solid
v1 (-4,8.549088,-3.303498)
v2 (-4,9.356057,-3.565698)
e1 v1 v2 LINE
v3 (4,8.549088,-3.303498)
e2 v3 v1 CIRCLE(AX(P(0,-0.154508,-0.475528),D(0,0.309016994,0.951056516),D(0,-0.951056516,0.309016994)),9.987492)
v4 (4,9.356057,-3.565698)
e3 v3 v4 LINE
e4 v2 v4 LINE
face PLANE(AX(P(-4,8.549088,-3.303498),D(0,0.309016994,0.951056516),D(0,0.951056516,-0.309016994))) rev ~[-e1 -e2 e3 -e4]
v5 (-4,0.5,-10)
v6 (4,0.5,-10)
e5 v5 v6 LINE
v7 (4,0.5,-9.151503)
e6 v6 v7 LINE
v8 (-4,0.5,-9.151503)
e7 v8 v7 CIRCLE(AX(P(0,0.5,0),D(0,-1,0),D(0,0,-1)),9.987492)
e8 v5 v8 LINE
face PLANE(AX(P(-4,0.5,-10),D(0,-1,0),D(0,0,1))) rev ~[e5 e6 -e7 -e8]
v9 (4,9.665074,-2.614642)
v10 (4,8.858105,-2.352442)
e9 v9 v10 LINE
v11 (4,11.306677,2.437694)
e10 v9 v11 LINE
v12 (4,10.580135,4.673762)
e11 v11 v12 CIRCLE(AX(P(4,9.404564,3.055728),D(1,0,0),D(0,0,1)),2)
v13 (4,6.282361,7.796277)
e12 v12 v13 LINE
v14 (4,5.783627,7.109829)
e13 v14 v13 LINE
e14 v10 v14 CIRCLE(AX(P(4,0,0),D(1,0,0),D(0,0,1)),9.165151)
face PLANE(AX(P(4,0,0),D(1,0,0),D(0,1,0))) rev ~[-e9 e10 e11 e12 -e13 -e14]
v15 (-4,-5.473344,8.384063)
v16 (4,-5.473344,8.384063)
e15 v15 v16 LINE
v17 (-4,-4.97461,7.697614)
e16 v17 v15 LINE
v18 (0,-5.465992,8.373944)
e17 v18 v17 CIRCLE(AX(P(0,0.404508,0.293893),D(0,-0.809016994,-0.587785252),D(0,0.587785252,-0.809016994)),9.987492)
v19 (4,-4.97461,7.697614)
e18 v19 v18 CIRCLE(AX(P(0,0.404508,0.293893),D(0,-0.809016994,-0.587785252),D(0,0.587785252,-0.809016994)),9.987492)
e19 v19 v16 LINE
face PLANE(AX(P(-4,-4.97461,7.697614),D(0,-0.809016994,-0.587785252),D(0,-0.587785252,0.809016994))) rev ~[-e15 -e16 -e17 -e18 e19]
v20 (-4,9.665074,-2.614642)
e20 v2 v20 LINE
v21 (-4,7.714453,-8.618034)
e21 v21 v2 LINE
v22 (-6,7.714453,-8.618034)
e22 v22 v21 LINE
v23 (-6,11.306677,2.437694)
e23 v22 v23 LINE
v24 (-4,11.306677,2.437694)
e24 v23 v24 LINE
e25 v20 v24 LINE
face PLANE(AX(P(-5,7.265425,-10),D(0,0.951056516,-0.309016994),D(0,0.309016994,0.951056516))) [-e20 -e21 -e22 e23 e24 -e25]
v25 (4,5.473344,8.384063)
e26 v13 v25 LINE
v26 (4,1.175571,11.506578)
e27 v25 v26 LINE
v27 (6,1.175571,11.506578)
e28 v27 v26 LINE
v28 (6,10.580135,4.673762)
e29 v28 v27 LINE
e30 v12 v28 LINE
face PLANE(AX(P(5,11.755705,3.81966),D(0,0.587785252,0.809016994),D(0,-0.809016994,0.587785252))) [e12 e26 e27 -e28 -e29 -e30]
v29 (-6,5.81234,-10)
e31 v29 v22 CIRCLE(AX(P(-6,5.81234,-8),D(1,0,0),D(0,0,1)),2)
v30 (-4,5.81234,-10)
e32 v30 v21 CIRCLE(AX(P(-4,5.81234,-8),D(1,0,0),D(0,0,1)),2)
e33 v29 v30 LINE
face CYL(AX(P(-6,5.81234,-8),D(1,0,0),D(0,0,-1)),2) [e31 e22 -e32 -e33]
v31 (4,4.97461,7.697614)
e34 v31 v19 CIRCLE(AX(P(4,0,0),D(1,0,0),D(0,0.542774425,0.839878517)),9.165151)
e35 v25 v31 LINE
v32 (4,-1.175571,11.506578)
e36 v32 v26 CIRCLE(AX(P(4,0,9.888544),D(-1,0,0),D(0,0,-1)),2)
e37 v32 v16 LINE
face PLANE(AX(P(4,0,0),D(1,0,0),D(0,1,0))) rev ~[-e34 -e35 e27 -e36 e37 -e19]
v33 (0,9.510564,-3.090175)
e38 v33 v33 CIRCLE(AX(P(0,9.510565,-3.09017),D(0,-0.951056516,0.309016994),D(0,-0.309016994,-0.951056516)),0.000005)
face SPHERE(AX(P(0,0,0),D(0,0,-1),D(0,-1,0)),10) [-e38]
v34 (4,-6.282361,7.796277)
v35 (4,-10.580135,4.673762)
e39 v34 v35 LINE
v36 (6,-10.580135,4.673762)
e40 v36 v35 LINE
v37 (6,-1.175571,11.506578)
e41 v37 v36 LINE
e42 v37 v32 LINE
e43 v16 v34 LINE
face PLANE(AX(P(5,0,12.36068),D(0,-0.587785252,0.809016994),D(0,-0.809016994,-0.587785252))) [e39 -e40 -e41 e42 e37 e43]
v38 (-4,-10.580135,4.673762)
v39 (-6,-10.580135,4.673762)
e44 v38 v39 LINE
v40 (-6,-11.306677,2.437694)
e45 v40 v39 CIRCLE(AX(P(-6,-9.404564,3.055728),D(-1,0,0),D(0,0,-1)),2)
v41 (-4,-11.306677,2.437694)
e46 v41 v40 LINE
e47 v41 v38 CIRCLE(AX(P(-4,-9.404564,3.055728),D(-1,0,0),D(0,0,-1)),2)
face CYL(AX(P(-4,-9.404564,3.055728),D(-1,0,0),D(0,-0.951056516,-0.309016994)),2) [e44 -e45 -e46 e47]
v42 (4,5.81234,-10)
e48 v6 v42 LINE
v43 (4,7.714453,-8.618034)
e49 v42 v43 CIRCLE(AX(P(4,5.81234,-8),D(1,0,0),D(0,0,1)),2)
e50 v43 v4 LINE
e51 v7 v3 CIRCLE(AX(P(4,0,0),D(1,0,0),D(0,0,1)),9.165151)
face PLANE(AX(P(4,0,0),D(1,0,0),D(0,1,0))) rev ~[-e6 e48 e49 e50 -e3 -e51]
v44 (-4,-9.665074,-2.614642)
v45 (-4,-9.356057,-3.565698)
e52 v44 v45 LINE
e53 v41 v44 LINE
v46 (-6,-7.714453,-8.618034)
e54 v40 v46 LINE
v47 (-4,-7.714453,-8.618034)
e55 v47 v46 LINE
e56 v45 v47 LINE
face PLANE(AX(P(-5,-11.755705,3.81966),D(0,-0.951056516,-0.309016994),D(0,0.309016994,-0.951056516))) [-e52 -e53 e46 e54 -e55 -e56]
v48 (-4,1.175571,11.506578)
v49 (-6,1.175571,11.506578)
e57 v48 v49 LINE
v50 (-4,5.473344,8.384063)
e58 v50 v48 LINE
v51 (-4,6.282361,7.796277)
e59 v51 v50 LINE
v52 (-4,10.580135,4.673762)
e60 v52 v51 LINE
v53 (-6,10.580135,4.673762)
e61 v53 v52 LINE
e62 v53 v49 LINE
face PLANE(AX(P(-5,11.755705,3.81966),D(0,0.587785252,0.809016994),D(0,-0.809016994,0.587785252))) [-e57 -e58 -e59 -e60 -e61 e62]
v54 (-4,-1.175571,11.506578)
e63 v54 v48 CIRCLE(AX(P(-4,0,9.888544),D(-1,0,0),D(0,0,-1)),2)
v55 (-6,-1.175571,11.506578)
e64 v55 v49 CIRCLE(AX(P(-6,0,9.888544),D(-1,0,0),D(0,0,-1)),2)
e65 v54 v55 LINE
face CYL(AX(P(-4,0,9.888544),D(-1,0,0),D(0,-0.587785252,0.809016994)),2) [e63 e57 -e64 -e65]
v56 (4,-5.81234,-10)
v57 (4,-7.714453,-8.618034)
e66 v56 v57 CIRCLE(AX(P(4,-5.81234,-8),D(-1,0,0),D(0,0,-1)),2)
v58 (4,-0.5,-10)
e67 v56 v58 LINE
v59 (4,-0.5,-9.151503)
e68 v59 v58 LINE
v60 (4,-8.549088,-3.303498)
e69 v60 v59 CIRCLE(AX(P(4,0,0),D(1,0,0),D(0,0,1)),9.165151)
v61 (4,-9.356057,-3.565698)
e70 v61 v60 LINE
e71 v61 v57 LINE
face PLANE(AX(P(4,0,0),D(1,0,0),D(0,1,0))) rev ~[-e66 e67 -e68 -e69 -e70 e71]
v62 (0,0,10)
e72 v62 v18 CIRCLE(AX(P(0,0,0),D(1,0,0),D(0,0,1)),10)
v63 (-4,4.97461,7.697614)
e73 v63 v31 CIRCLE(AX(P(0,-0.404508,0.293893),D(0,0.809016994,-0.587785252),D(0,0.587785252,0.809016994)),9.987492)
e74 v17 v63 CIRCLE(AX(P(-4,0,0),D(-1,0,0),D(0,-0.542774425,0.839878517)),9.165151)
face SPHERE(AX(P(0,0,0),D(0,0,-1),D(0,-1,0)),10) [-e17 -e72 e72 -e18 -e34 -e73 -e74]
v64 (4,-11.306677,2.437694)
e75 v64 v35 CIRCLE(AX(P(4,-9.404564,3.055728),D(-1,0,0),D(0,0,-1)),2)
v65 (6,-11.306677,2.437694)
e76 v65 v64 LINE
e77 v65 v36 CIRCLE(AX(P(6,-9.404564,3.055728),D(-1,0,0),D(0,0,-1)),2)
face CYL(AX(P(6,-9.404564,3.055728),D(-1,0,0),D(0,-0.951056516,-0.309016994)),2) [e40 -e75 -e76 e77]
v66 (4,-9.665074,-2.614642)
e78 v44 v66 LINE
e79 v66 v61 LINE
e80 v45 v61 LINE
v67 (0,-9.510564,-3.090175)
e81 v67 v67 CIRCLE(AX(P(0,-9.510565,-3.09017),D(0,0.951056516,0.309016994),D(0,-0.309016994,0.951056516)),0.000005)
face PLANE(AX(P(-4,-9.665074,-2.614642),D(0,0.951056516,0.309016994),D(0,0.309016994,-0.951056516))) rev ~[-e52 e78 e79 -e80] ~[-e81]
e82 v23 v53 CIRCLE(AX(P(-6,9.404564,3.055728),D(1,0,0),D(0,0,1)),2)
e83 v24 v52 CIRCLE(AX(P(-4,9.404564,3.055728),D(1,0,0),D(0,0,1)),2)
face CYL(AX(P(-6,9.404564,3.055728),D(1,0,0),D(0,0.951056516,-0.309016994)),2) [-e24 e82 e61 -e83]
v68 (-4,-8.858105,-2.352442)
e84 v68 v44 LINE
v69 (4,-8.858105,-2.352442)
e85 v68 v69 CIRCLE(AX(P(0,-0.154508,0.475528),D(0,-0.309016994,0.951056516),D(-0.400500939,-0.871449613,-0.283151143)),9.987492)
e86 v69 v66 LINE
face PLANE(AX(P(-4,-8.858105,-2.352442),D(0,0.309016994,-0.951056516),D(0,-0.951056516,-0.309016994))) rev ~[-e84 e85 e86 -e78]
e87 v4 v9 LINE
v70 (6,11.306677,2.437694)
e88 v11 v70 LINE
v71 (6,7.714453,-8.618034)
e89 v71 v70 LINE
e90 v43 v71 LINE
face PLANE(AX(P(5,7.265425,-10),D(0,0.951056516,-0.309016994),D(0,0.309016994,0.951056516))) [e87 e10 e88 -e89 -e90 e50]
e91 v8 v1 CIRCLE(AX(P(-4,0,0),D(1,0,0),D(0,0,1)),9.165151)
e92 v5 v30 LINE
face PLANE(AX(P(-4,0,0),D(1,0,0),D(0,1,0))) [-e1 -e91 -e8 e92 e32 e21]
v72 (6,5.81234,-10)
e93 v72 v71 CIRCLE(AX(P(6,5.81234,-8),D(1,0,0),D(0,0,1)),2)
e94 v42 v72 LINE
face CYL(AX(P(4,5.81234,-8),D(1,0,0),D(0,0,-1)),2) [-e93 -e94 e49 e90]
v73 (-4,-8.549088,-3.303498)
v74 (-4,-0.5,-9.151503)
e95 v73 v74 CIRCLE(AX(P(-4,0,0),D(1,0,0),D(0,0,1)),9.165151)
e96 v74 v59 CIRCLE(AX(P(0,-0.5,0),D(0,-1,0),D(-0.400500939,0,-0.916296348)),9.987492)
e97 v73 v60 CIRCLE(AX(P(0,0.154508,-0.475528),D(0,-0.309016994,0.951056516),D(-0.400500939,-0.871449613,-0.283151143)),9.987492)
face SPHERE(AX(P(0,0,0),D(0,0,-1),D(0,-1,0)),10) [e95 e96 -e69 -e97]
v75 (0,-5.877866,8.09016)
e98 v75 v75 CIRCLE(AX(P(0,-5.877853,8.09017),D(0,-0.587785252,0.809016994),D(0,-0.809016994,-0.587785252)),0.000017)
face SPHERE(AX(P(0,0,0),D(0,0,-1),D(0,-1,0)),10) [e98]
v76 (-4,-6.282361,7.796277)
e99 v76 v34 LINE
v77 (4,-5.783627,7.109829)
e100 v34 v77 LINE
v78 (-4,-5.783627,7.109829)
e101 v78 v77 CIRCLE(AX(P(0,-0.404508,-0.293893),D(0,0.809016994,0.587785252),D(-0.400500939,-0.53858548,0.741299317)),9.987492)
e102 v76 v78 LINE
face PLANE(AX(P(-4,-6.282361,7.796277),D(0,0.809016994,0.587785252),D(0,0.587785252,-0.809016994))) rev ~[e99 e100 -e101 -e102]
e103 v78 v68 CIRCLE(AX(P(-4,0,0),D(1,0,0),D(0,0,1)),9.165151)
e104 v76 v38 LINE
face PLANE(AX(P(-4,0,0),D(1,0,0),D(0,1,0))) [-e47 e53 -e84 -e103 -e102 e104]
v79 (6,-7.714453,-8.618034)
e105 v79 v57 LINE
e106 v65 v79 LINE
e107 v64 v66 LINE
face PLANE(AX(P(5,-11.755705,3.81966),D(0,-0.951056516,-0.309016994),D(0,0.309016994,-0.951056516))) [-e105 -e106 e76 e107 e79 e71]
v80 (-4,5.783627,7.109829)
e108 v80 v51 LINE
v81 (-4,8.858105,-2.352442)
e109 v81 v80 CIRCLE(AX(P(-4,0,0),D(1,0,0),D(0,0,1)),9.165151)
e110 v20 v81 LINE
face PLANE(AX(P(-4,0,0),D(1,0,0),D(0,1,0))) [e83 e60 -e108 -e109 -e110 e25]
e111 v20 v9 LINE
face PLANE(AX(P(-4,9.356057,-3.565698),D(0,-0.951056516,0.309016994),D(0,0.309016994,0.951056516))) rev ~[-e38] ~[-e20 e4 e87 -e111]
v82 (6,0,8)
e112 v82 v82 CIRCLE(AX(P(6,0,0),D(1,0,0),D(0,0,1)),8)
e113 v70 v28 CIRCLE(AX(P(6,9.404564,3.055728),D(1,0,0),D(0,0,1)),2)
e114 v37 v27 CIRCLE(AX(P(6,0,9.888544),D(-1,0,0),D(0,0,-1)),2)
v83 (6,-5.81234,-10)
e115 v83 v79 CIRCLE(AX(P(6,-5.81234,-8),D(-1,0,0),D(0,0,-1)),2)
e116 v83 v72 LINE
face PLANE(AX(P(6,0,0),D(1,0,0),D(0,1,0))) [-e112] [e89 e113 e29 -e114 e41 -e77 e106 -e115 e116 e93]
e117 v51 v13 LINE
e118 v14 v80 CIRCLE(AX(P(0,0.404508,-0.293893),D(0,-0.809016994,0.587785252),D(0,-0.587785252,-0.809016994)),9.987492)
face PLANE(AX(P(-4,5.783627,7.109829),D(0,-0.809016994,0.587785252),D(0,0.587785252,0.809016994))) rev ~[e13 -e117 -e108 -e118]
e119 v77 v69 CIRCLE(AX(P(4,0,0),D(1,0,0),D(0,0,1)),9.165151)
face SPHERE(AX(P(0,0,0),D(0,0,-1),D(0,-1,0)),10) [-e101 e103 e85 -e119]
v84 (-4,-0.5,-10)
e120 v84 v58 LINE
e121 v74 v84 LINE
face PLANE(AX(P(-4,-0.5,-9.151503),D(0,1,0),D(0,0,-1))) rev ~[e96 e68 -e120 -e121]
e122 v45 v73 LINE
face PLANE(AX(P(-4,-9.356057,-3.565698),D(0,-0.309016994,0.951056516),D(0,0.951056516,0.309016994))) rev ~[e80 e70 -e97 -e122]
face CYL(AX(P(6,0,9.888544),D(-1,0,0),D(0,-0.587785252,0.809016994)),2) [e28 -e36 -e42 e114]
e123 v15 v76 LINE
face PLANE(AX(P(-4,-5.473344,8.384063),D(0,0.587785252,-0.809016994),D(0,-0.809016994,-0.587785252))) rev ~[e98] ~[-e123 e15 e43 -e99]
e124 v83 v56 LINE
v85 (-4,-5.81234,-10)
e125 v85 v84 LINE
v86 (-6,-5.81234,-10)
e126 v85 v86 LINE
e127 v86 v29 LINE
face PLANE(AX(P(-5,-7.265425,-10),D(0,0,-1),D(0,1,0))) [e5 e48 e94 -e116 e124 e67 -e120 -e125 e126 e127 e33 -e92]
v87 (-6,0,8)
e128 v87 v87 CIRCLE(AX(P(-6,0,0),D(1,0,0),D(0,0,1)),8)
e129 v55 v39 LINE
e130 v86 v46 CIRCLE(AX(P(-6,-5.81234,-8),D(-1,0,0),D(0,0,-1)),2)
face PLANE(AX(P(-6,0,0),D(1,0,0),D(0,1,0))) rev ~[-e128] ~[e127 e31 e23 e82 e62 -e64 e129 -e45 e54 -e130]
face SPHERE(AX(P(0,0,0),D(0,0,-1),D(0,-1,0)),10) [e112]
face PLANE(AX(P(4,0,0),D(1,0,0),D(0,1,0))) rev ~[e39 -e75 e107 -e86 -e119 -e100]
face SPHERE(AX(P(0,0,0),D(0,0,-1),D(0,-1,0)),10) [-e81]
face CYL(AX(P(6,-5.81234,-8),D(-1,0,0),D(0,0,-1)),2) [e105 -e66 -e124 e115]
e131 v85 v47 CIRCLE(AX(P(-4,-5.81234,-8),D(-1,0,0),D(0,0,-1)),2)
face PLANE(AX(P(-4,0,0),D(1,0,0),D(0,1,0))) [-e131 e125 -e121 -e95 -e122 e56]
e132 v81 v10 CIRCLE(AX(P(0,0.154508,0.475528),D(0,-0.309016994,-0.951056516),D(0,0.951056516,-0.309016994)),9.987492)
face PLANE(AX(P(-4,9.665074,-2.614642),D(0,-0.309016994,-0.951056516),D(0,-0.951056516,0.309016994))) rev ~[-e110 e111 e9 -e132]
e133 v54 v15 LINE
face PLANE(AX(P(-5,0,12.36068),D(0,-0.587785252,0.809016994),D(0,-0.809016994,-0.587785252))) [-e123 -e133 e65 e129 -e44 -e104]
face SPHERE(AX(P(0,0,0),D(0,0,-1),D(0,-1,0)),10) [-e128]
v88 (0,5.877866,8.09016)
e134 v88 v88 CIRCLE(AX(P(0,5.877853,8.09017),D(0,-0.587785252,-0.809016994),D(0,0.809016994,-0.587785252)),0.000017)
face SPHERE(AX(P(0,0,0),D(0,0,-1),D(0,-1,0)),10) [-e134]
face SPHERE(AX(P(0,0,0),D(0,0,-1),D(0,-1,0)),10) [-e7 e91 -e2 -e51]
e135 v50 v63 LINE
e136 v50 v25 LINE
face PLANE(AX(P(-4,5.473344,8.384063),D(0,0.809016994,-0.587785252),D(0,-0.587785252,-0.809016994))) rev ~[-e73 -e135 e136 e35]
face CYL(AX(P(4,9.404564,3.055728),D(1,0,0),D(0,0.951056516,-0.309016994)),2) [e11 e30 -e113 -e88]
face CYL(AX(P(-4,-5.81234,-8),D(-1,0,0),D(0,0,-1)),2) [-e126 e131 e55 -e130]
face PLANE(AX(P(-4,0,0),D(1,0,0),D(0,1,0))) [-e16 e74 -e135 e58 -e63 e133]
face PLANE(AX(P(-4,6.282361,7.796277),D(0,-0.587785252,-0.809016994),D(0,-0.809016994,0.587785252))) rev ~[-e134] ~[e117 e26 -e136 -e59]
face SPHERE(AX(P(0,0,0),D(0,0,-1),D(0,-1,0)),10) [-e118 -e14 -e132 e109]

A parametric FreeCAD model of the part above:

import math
import FreeCAD as App
import Part
import Sketcher
Q = App.Units.Quantity


def edges_at(feature, points):
    """Names of the edges that pass closest to the given points."""
    edges = feature.Shape.Edges
    near = lambda p: min(range(len(edges)), key=lambda i: edges[i].distToShape(Part.Vertex(*p))[0])
    return sorted({f"Edge{near(p) + 1}" for p in points})


def add_polygon(sketch, points):
    """Adds a closed chain of lines whose ends are joined by coincident constraints."""
    first, n = sketch.GeometryCount, len(points)
    for a, b in zip(points, points[1:] + points[:1]):
        sketch.addGeometry(Part.LineSegment(App.Vector(*a, 0), App.Vector(*b, 0)), False)
    for i in range(n):
        sketch.addConstraint(Sketcher.Constraint("Coincident", first + i, 2, first + (i + 1) % n, 1))

doc = App.newDocument("Part")
body = doc.addObject("PartDesign::Body", "Body")

# Sketch on YZ plane
sketch1 = body.newObject("Sketcher::SketchObject", "Sketch")
sketch1.AttachmentSupport = (doc.getObject("YZ_Plane"), [""])
sketch1.MapMode = "FlatFace"
sketch1.addGeometry([
    Part.LineSegment(App.Vector(0, -10, 0), App.Vector(0, 10, 0)),
    Part.ArcOfCircle(Part.Circle(App.Vector(0, 0, 0), App.Vector(0, 0, 1), 10), math.radians(90), math.radians(270)),
], False)
sketch1.addConstraint([
    Sketcher.Constraint("Coincident", 0, 1, 1, 2),
    Sketcher.Constraint("Coincident", 1, 1, 0, 2),
    Sketcher.Constraint("Vertical", 0),
    Sketcher.Constraint("Coincident", 1, 3, -1, 1),
    Sketcher.Constraint("PointOnObject", 0, 1, -2),
    Sketcher.Constraint("Radius", 1, 10.0),
])
revolution = body.newObject("PartDesign::Revolution", "Revolution")
revolution.Profile = sketch1
revolution.ReferenceAxis = (sketch1, ["V_Axis"])
revolution.Angle = 360

# Sketch on YZ plane
sketch2 = body.newObject("Sketcher::SketchObject", "Sketch001")
sketch2.AttachmentSupport = (doc.getObject("YZ_Plane"), [""])
sketch2.MapMode = "FlatFace"
sketch2.AttachmentOffset = App.Placement(App.Vector(0, 0, 5), App.Rotation())
add_polygon(sketch2, [(-7.265425, -10), (7.265425, -10), (11.755705, 3.81966), (0, 12.36068), (-11.755705, 3.81966)])  # lines 0-4
sketch2.addConstraint([
    Sketcher.Constraint("Horizontal", 0),
    Sketcher.Constraint("Symmetric", 1, 2, 3, 2, -2),
    Sketcher.Constraint("PointOnObject", 2, 2, -2),
    Sketcher.Constraint("Equal", 1, 2),
    Sketcher.Constraint("Equal", 3, 4),
    Sketcher.Constraint("Angle", 1, Q("72 deg")),
    Sketcher.Constraint("Angle", 2, Q("144 deg")),
    Sketcher.Constraint("DistanceY", 0, 2, -1, 1, 10.0),
    Sketcher.Constraint("DistanceX", 0, 1, 0, 2, 14.530851),
])
pad1 = body.newObject("PartDesign::Pad", "Pad")
pad1.Profile = sketch2
pad1.Length = 2
pad1.Midplane = True

# Sketch on YZ plane
sketch3 = body.newObject("Sketcher::SketchObject", "Sketch002")
sketch3.AttachmentSupport = (doc.getObject("YZ_Plane"), [""])
sketch3.MapMode = "FlatFace"
sketch3.AttachmentOffset = App.Placement(App.Vector(0, 0, -5), App.Rotation())
add_polygon(sketch3, [(-7.265425, -10), (7.265425, -10), (11.755705, 3.81966), (0, 12.36068), (-11.755705, 3.81966)])  # lines 0-4
sketch3.addConstraint([
    Sketcher.Constraint("Horizontal", 0),
    Sketcher.Constraint("Symmetric", 1, 2, 3, 2, -2),
    Sketcher.Constraint("PointOnObject", 2, 2, -2),
    Sketcher.Constraint("Equal", 1, 2),
    Sketcher.Constraint("Equal", 3, 4),
    Sketcher.Constraint("Angle", 1, Q("72 deg")),
    Sketcher.Constraint("Angle", 2, Q("144 deg")),
    Sketcher.Constraint("DistanceY", 0, 2, -1, 1, 10.0),
    Sketcher.Constraint("DistanceX", 0, 1, 0, 2, 14.530851),
])
pad2 = body.newObject("PartDesign::Pad", "Pad001")
pad2.Profile = sketch3
pad2.Length = 2
pad2.Midplane = True
doc.recompute()

fillet = body.newObject("PartDesign::Fillet", "Fillet")
fillet.Base = (pad2, edges_at(pad2, [
    (-5, -11.756, 3.82),
    (-5, 0, 12.361),
    (5, 0, 12.361),
    (5, -11.756, 3.82),
    (-5, -7.265, -10),
    (5, -7.265, -10),
    (5, 11.756, 3.82),
    (-5, 11.756, 3.82),
    (5, 7.265, -10),
    (-5, 7.265, -10),
]))
fillet.Radius = 2

# Sketch on YZ plane
sketch4 = body.newObject("Sketcher::SketchObject", "Sketch003")
sketch4.AttachmentSupport = (doc.getObject("YZ_Plane"), [""])
sketch4.MapMode = "FlatFace"
sketch4.AttachmentOffset = App.Placement(App.Vector(0, 0, -4), App.Rotation())
sketch4.addGeometry([
    Part.ArcOfCircle(Part.Circle(App.Vector(0, 0, 0), App.Vector(0, 0, 1), 9.165151), math.radians(122.872706), math.radians(129.127294)),  # 0
    Part.LineSegment(App.Vector(-4.97461, 7.697614, 0), App.Vector(-5.473344, 8.384063, 0)),  # 1
    Part.LineSegment(App.Vector(-5.473344, 8.384063, 0), App.Vector(-6.282361, 7.796277, 0)),  # 2
    Part.LineSegment(App.Vector(-6.282361, 7.796277, 0), App.Vector(-5.783627, 7.109829, 0)),  # 3
    Part.LineSegment(App.Vector(5.473344, 8.384063, 0), App.Vector(4.97461, 7.697614, 0)),  # 4
    Part.ArcOfCircle(Part.Circle(App.Vector(0, 0, 0), App.Vector(0, 0, 1), 9.165151), math.radians(50.872706), math.radians(57.127294)),  # 5
    Part.LineSegment(App.Vector(5.783627, 7.109829, 0), App.Vector(6.282361, 7.796277, 0)),  # 6
    Part.LineSegment(App.Vector(6.282361, 7.796277, 0), App.Vector(5.473344, 8.384063, 0)),  # 7
    Part.LineSegment(App.Vector(9.665074, -2.614642, 0), App.Vector(8.858105, -2.352442, 0)),  # 8
    Part.ArcOfCircle(Part.Circle(App.Vector(0, 0, 0), App.Vector(0, 0, 1), 9.165151), math.radians(-21.127294), math.radians(-14.872706)),  # 9
    Part.LineSegment(App.Vector(8.549088, -3.303498, 0), App.Vector(9.356057, -3.565698, 0)),  # 10
    Part.LineSegment(App.Vector(9.356057, -3.565698, 0), App.Vector(9.665074, -2.614642, 0)),  # 11
    Part.ArcOfCircle(Part.Circle(App.Vector(0, 0, 0), App.Vector(0, 0, 1), 9.165151), math.radians(-93.127294), math.radians(-86.872706)),  # 12
    Part.LineSegment(App.Vector(-0.5, -9.151503, 0), App.Vector(-0.5, -10, 0)),  # 13
    Part.LineSegment(App.Vector(-0.5, -10, 0), App.Vector(0.5, -10, 0)),  # 14
    Part.LineSegment(App.Vector(0.5, -10, 0), App.Vector(0.5, -9.151503, 0)),  # 15
    Part.ArcOfCircle(Part.Circle(App.Vector(0, 0, 0), App.Vector(0, 0, 1), 9.165151), math.radians(-165.127294), math.radians(-158.872706)),  # 16
    Part.LineSegment(App.Vector(-8.858105, -2.352442, 0), App.Vector(-9.665074, -2.614642, 0)),  # 17
    Part.LineSegment(App.Vector(-9.665074, -2.614642, 0), App.Vector(-9.356057, -3.565698, 0)),  # 18
    Part.LineSegment(App.Vector(-9.356057, -3.565698, 0), App.Vector(-8.549088, -3.303498, 0)),  # 19
], False)
sketch4.addConstraint([
    Sketcher.Constraint("Coincident", 0, 1, 1, 1),
    Sketcher.Constraint("Coincident", 1, 2, 2, 1),
    Sketcher.Constraint("Coincident", 2, 2, 3, 1),
    Sketcher.Constraint("Coincident", 3, 2, 0, 2),
    Sketcher.Constraint("Coincident", 4, 2, 5, 2),
    Sketcher.Constraint("Coincident", 5, 1, 6, 1),
    Sketcher.Constraint("Coincident", 6, 2, 7, 1),
    Sketcher.Constraint("Coincident", 7, 2, 4, 1),
    Sketcher.Constraint("Coincident", 8, 2, 9, 2),
    Sketcher.Constraint("Coincident", 9, 1, 10, 1),
    Sketcher.Constraint("Coincident", 10, 2, 11, 1),
    Sketcher.Constraint("Coincident", 11, 2, 8, 1),
    Sketcher.Constraint("Coincident", 12, 1, 13, 1),
    Sketcher.Constraint("Coincident", 13, 2, 14, 1),
    Sketcher.Constraint("Coincident", 14, 2, 15, 1),
    Sketcher.Constraint("Coincident", 15, 2, 12, 2),
    Sketcher.Constraint("Coincident", 16, 1, 17, 1),
    Sketcher.Constraint("Coincident", 17, 2, 18, 1),
    Sketcher.Constraint("Coincident", 18, 2, 19, 1),
    Sketcher.Constraint("Coincident", 19, 2, 16, 2),
    Sketcher.Constraint("Vertical", 13),
    Sketcher.Constraint("Horizontal", 14),
    Sketcher.Constraint("Vertical", 15),
    Sketcher.Constraint("Coincident", 0, 3, -1, 1),
    Sketcher.Constraint("Coincident", 5, 3, -1, 1),
    Sketcher.Constraint("Coincident", 9, 3, -1, 1),
    Sketcher.Constraint("Coincident", 12, 3, -1, 1),
    Sketcher.Constraint("Coincident", 16, 3, -1, 1),
    Sketcher.Constraint("Equal", 0, 5),
    Sketcher.Constraint("Equal", 5, 9),
    Sketcher.Constraint("Equal", 9, 12),
    Sketcher.Constraint("Equal", 12, 16),
    Sketcher.Constraint("Symmetric", 2, 2, 6, 2, -2),
    Sketcher.Constraint("Symmetric", 1, 2, 7, 2, -2),
    Sketcher.Constraint("Symmetric", 11, 2, 17, 2, -2),
    Sketcher.Constraint("Symmetric", 10, 2, 18, 2, -2),
    Sketcher.Constraint("Perpendicular", 1, 2),
    Sketcher.Constraint("Perpendicular", 2, 3),
    Sketcher.Constraint("Parallel", 4, 6),
    Sketcher.Constraint("Perpendicular", 6, 7),
    Sketcher.Constraint("Parallel", 8, 10),
    Sketcher.Constraint("Perpendicular", 10, 11),
    Sketcher.Constraint("Perpendicular", 17, 18),
    Sketcher.Constraint("Perpendicular", 18, 19),
    Sketcher.Constraint("Horizontal", 12, 1, 15, 2),
    Sketcher.Constraint("Equal", 1, 3),
    Sketcher.Constraint("Equal", 6, 8),
    Sketcher.Constraint("Equal", 8, 10),
    Sketcher.Constraint("Equal", 7, 11),
    Sketcher.Constraint("DistanceX", 14, 1, 14, 2, 1.0),
    Sketcher.Constraint("Angle", 1, Q("126 deg")),
    Sketcher.Constraint("Angle", 8, Q("162 deg")),
    Sketcher.Constraint("Distance", 2, 1.0),
    Sketcher.Constraint("DistanceY", 13, 2, -1, 1, 10.0),
    Sketcher.Constraint("Radius", 0, 9.165151),
    Sketcher.Constraint("DistanceY", 10, 2, -1, 1, 3.565698),
])
pad3 = body.newObject("PartDesign::Pad", "Pad002")
pad3.Profile = sketch4
pad3.Length = 8

doc.recompute()
